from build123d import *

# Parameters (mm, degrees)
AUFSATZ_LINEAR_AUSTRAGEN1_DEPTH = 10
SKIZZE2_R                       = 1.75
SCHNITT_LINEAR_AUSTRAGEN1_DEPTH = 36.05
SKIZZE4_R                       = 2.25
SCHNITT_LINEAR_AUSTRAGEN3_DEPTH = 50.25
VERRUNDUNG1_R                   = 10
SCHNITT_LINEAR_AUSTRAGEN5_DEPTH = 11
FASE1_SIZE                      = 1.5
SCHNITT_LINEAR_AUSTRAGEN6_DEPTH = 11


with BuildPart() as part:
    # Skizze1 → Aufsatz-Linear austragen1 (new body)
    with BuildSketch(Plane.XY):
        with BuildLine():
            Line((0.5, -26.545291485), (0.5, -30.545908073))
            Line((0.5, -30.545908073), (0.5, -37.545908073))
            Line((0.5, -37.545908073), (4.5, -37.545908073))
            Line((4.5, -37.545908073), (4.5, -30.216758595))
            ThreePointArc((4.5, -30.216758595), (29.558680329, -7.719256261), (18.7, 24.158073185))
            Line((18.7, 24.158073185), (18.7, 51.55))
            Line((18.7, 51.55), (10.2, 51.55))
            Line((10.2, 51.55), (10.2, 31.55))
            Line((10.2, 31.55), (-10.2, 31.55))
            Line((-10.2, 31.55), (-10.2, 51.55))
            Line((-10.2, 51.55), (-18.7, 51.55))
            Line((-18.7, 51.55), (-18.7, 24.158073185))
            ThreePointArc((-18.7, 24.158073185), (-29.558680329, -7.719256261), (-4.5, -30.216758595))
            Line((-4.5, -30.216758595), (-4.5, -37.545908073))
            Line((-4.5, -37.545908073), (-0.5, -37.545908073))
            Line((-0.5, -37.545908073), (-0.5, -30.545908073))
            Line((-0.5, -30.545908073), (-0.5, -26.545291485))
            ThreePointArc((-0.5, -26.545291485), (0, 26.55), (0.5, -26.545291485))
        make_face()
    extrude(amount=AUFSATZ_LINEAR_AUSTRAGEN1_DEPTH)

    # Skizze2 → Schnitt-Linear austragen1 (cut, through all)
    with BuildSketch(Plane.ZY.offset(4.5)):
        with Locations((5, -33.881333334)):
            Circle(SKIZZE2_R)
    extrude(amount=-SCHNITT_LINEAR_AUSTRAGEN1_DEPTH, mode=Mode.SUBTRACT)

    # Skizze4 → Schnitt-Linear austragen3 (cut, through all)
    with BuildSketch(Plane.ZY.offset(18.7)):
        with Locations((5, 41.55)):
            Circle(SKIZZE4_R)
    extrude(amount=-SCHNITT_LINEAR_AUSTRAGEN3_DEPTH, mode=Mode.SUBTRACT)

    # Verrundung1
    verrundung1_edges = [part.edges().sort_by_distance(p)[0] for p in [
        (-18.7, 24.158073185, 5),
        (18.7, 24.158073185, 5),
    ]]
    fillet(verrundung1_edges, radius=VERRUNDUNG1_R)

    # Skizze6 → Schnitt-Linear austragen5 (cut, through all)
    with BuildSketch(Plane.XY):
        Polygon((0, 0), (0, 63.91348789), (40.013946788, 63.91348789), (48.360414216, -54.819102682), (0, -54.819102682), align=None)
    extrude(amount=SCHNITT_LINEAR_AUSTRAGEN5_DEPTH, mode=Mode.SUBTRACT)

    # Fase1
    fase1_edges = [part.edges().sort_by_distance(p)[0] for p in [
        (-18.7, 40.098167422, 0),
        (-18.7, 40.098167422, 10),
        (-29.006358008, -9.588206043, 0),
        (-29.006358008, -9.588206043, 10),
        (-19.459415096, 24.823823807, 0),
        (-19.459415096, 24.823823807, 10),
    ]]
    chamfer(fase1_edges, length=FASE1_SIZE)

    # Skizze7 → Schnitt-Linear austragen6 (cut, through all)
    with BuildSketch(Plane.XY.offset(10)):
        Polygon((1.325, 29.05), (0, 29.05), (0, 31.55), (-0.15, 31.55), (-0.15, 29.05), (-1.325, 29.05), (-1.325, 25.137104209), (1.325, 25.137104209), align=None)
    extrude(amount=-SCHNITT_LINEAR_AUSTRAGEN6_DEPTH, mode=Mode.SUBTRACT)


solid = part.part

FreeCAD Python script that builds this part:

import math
import FreeCAD as App
import Part
import Sketcher

V = App.Vector
Q = App.Units.Quantity


def edges_at(feature, points):
    """Names of the edges that pass closest to the given points."""
    edges = feature.Shape.Edges
    near = lambda p: min(range(len(edges)), key=lambda i: edges[i].distToShape(Part.Vertex(*p))[0])
    return sorted({f"Edge{near(p) + 1}" for p in points})


def add_polygon(sketch, points):
    """Adds a closed chain of lines whose ends are joined by coincident constraints."""
    first, n = sketch.GeometryCount, len(points)
    for a, b in zip(points, points[1:] + points[:1]):
        sketch.addGeometry(Part.LineSegment(App.Vector(*a, 0), App.Vector(*b, 0)), False)
    for i in range(n):
        sketch.addConstraint(Sketcher.Constraint("Coincident", first + i, 2, first + (i + 1) % n, 1))

doc = App.newDocument("Part")
params = doc.addObject("Spreadsheet::Sheet", "Params")
for row, (alias, value) in enumerate([
    ("sketch1_width", "4 mm"),
    ("sketch1_height", "20 mm"),
    ("sketch1_radius", "30.55 mm"),
    ("sketch1_radius2", "26.55 mm"),
    ("sketch1_width2", "8.5 mm"),
    ("pad1_length", "10 mm"),
    ("sketch2_diameter", "3.5 mm"),
    ("sketch3_diameter", "4.5 mm"),
    ("fillet_radius", "10 mm"),
    ("chamfer_size", "1.5 mm"),
    ("sketch5_height", "2.5 mm"),
    ("sketch5_width", "0.15 mm"),
    ("sketch5_width2", "2.65 mm"),
], start=1):
    params.set(f"A{row}", alias)
    params.set(f"B{row}", "=" + value)
    params.setAlias(f"B{row}", alias)

body = doc.addObject("PartDesign::Body", "Body")

# Sketch on XY plane
sketch1 = body.newObject("Sketcher::SketchObject", "Sketch")
sketch1.AttachmentSupport = (doc.getObject("XY_Plane"), [""])
sketch1.MapMode = "FlatFace"
sketch1.addGeometry(Part.LineSegment(V(0.5, -26.5, 0), V(0.5, -37.5, 0)), False)
sketch1.addGeometry(Part.LineSegment(V(0.5, -37.5, 0), V(4.5, -37.5, 0)), False)
sketch1.addGeometry(Part.LineSegment(V(4.5, -37.5, 0), V(4.5, -30.2, 0)), False)
sketch1.addGeometry(Part.ArcOfCircle(Part.Circle(V(0, 0, 0), V(0, 0, 1), 30.6), math.radians(-82), math.radians(52)), False)
sketch1.addGeometry(Part.LineSegment(V(18.7, 24.2, 0), V(18.7, 51.5, 0)), False)
sketch1.addGeometry(Part.LineSegment(V(18.7, 51.5, 0), V(10.2, 51.5, 0)), False)
sketch1.addGeometry(Part.LineSegment(V(10.2, 51.5, 0), V(10.2, 31.6, 0)), False)
sketch1.addGeometry(Part.LineSegment(V(10.2, 31.6, 0), V(-10.2, 31.6, 0)), False)
sketch1.addGeometry(Part.LineSegment(V(-10.2, 31.6, 0), V(-10.2, 51.5, 0)), False)
sketch1.addGeometry(Part.LineSegment(V(-10.2, 51.5, 0), V(-18.7, 51.5, 0)), False)
sketch1.addGeometry(Part.LineSegment(V(-18.7, 51.5, 0), V(-18.7, 24.2, 0)), False)
sketch1.addGeometry(Part.ArcOfCircle(Part.Circle(V(0, 0, 0), V(0, 0, 1), 30.6), math.radians(128), math.radians(262)), False)
sketch1.addGeometry(Part.LineSegment(V(-4.5, -30.2, 0), V(-4.5, -37.5, 0)), False)
sketch1.addGeometry(Part.LineSegment(V(-4.5, -37.5, 0), V(-0.5, -37.5, 0)), False)
sketch1.addGeometry(Part.LineSegment(V(-0.5, -37.5, 0), V(-0.5, -26.5, 0)), False)
sketch1.addGeometry(Part.ArcOfCircle(Part.Circle(V(0, 0, 0), V(0, 0, 1), 26.6), math.radians(-89), math.radians(269)), False)
sketch1.addConstraint(Sketcher.Constraint("Coincident", 0, 2, 1, 1))
sketch1.addConstraint(Sketcher.Constraint("Coincident", 1, 2, 2, 1))
sketch1.addConstraint(Sketcher.Constraint("Coincident", 2, 2, 3, 1))
sketch1.addConstraint(Sketcher.Constraint("Coincident", 3, 2, 4, 1))
sketch1.addConstraint(Sketcher.Constraint("Coincident", 4, 2, 5, 1))
sketch1.addConstraint(Sketcher.Constraint("Coincident", 5, 2, 6, 1))
sketch1.addConstraint(Sketcher.Constraint("Coincident", 6, 2, 7, 1))
sketch1.addConstraint(Sketcher.Constraint("Coincident", 7, 2, 8, 1))
sketch1.addConstraint(Sketcher.Constraint("Coincident", 8, 2, 9, 1))
sketch1.addConstraint(Sketcher.Constraint("Coincident", 9, 2, 10, 1))
sketch1.addConstraint(Sketcher.Constraint("Coincident", 10, 2, 11, 1))
sketch1.addConstraint(Sketcher.Constraint("Coincident", 11, 2, 12, 1))
sketch1.addConstraint(Sketcher.Constraint("Coincident", 12, 2, 13, 1))
sketch1.addConstraint(Sketcher.Constraint("Coincident", 13, 2, 14, 1))
sketch1.addConstraint(Sketcher.Constraint("Coincident", 14, 2, 15, 2))
sketch1.addConstraint(Sketcher.Constraint("Coincident", 15, 1, 0, 1))
sketch1.addConstraint(Sketcher.Constraint("Vertical", 0))
sketch1.addConstraint(Sketcher.Constraint("Horizontal", 1))
sketch1.addConstraint(Sketcher.Constraint("Vertical", 2))
sketch1.addConstraint(Sketcher.Constraint("Vertical", 4))
sketch1.addConstraint(Sketcher.Constraint("Horizontal", 5))
sketch1.addConstraint(Sketcher.Constraint("Vertical", 6))
sketch1.addConstraint(Sketcher.Constraint("Horizontal", 7))
sketch1.addConstraint(Sketcher.Constraint("Vertical", 8))
sketch1.addConstraint(Sketcher.Constraint("Horizontal", 9))
sketch1.addConstraint(Sketcher.Constraint("Vertical", 10))
sketch1.addConstraint(Sketcher.Constraint("Vertical", 12))
sketch1.addConstraint(Sketcher.Constraint("Horizontal", 13))
sketch1.addConstraint(Sketcher.Constraint("Vertical", 14))
sketch1.addConstraint(Sketcher.Constraint("Coincident", 3, 3, -1, 1))
sketch1.addConstraint(Sketcher.Constraint("Coincident", 11, 3, -1, 1))
sketch1.addConstraint(Sketcher.Constraint("Coincident", 15, 3, -1, 1))
sketch1.addConstraint(Sketcher.Constraint("Equal", 3, 11))
sketch1.addConstraint(Sketcher.Constraint("Symmetric", 5, 2, 8, 2, -2))
sketch1.addConstraint(Sketcher.Constraint("Symmetric", 1, 2, 12, 2, -2))
sketch1.addConstraint(Sketcher.Constraint("Horizontal", 3, 2, 10, 2))
sketch1.addConstraint(Sketcher.Constraint("Horizontal", 14, 2, 15, 1))
sketch1.addConstraint(Sketcher.Constraint("DistanceX", 1, 1, 1, 2, Q("4 mm")))
sketch1.addConstraint(Sketcher.Constraint("DistanceY", 6, 2, 6, 1, Q("20 mm")))
sketch1.addConstraint(Sketcher.Constraint("Radius", 3, Q("30.55 mm")))
sketch1.addConstraint(Sketcher.Constraint("Radius", 15, Q("26.55 mm")))
sketch1.addConstraint(Sketcher.Constraint("DistanceX", 5, 2, 5, 1, Q("8.5 mm")))
sketch1.addConstraint(Sketcher.Constraint("DistanceX", 7, 2, 7, 1, Q("20.4 mm")))
sketch1.addConstraint(Sketcher.Constraint("DistanceX", 11, 2, 0, 2, Q("5 mm")))
sketch1.addConstraint(Sketcher.Constraint("DistanceY", -1, 1, 4, 2, Q("51.55 mm")))
sketch1.addConstraint(Sketcher.Constraint("DistanceY", 2, 1, 2, 2, Q("7.329149 mm")))
sketch1.setExpression("Constraints[37]", "Params.sketch1_width")
sketch1.setExpression("Constraints[38]", "Params.sketch1_height")
sketch1.setExpression("Constraints[39]", "Params.sketch1_radius")
sketch1.setExpression("Constraints[40]", "Params.sketch1_radius2")
sketch1.setExpression("Constraints[41]", "Params.sketch1_width2")
pad1 = body.newObject("PartDesign::Pad", "Pad")
pad1.Profile = sketch1
pad1.setExpression("Length", "Params.pad1_length")

# Sketch on YZ plane
sketch2 = body.newObject("Sketcher::SketchObject", "Sketch001")
sketch2.AttachmentSupport = (doc.getObject("YZ_Plane"), [""])
sketch2.MapMode = "FlatFace"
sketch2.AttachmentOffset = App.Placement(V(0, 0, -4.5), App.Rotation())
sketch2.addGeometry(Part.Circle(V(-33.9, 5, 0), V(0, 0, 1), 1.8), False)
sketch2.addConstraint(Sketcher.Constraint("Diameter", 0, Q("3.5 mm")))
sketch2.addConstraint(Sketcher.Constraint("DistanceY", -1, 1, 0, 3, Q("5 mm")))
sketch2.addConstraint(Sketcher.Constraint("DistanceX", 0, 3, -1, 1, Q("33.881333 mm")))
sketch2.setExpression("Constraints[0]", "Params.sketch2_diameter")
pocket1 = body.newObject("PartDesign::Pocket", "Pocket")
pocket1.Profile = sketch2
pocket1.Type = "ThroughAll"
pocket1.Reversed = True

# Sketch on YZ plane
sketch3 = body.newObject("Sketcher::SketchObject", "Sketch002")
sketch3.AttachmentSupport = (doc.getObject("YZ_Plane"), [""])
sketch3.MapMode = "FlatFace"
sketch3.AttachmentOffset = App.Placement(V(0, 0, -18.7), App.Rotation())
sketch3.addGeometry(Part.Circle(V(41.5, 5, 0), V(0, 0, 1), 2.2), False)
sketch3.addConstraint(Sketcher.Constraint("Diameter", 0, Q("4.5 mm")))
sketch3.addConstraint(Sketcher.Constraint("DistanceY", -1, 1, 0, 3, Q("5 mm")))
sketch3.addConstraint(Sketcher.Constraint("DistanceX", -1, 1, 0, 3, Q("41.55 mm")))
sketch3.setExpression("Constraints[0]", "Params.sketch3_diameter")
pocket2 = body.newObject("PartDesign::Pocket", "Pocket001")
pocket2.Profile = sketch3
pocket2.Type = "ThroughAll"
pocket2.Reversed = True
doc.recompute()

fillet = body.newObject("PartDesign::Fillet", "Fillet")
fillet.Base = (pocket2, edges_at(pocket2, [(-18.7, 24.158, 5), (18.7, 24.158, 5)]))
fillet.setExpression("Radius", "Params.fillet_radius")

# Sketch on XY plane
sketch4 = body.newObject("Sketcher::SketchObject", "Sketch003")
sketch4.AttachmentSupport = (doc.getObject("XY_Plane"), [""])
sketch4.MapMode = "FlatFace"
add_polygon(sketch4, [(0, 64), (0, -55), (48, -55), (40, 64)])  # lines 0-3
sketch4.addConstraint(Sketcher.Constraint("Vertical", 0))
sketch4.addConstraint(Sketcher.Constraint("Horizontal", 1))
sketch4.addConstraint(Sketcher.Constraint("Horizontal", 3))
sketch4.addConstraint(Sketcher.Constraint("PointOnObject", 0, 2, -2))
sketch4.addConstraint(Sketcher.Constraint("DistanceY", 0, 2, 0, 1, Q("118.732591 mm")))
sketch4.addConstraint(Sketcher.Constraint("DistanceX", 1, 1, 1, 2, Q("48.360414 mm")))
sketch4.addConstraint(Sketcher.Constraint("DistanceX", 3, 2, 3, 1, Q("40.013947 mm")))
sketch4.addConstraint(Sketcher.Constraint("DistanceY", 0, 2, -1, 1, Q("54.819103 mm")))
pocket3 = body.newObject("PartDesign::Pocket", "Pocket002")
pocket3.Profile = sketch4
pocket3.Type = "ThroughAll"
pocket3.Reversed = True
doc.recompute()

chamfer = body.newObject("PartDesign::Chamfer", "Chamfer")
chamfer.Base = (pocket3, edges_at(pocket3, [
    (-18.7, 40.098, 0),
    (-18.7, 40.098, 10),
    (-29.006, -9.588, 0),
    (-29.006, -9.588, 10),
    (-19.459, 24.824, 0),
    (-19.459, 24.824, 10),
]))
chamfer.setExpression("Size", "Params.chamfer_size")

# Sketch on XY plane
sketch5 = body.newObject("Sketcher::SketchObject", "Sketch004")
sketch5.AttachmentSupport = (doc.getObject("XY_Plane"), [""])
sketch5.MapMode = "FlatFace"
sketch5.AttachmentOffset = App.Placement(V(0, 0, 10), App.Rotation())
add_polygon(sketch5, [(1.32, 29.05), (0, 29.05), (0, 31.55), (-0.15, 31.55), (-0.15, 29.05), (-1.32, 29.05), (-1.32, 25.14), (1.32, 25.14)])  # lines 0-7
sketch5.addConstraint(Sketcher.Constraint("Horizontal", 0))
sketch5.addConstraint(Sketcher.Constraint("Vertical", 1))
sketch5.addConstraint(Sketcher.Constraint("Horizontal", 2))
sketch5.addConstraint(Sketcher.Constraint("Vertical", 3))
sketch5.addConstraint(Sketcher.Constraint("Horizontal", 4))
sketch5.addConstraint(Sketcher.Constraint("Vertical", 5))
sketch5.addConstraint(Sketcher.Constraint("Horizontal", 6))
sketch5.addConstraint(Sketcher.Constraint("Vertical", 7))
sketch5.addConstraint(Sketcher.Constraint("Symmetric", 4, 2, 7, 2, -2))
sketch5.addConstraint(Sketcher.Constraint("PointOnObject", 0, 2, -2))
sketch5.addConstraint(Sketcher.Constraint("DistanceY", 1, 1, 1, 2, Q("2.5 mm")))
sketch5.addConstraint(Sketcher.Constraint("DistanceX", 2, 2, 2, 1, Q("0.15 mm")))
sketch5.addConstraint(Sketcher.Constraint("DistanceX", 6, 1, 6, 2, Q("2.65 mm")))
sketch5.addConstraint(Sketcher.Constraint("DistanceY", -1, 1, 0, 2, Q("29.05 mm")))
sketch5.addConstraint(Sketcher.Constraint("DistanceY", 5, 2, 5, 1, Q("3.912896 mm")))
sketch5.setExpression("Constraints[18]", "Params.sketch5_height")
sketch5.setExpression("Constraints[19]", "Params.sketch5_width")
sketch5.setExpression("Constraints[20]", "Params.sketch5_width2")
pocket4 = body.newObject("PartDesign::Pocket", "Pocket003")
pocket4.Profile = sketch5
pocket4.Type = "ThroughAll"

doc.recompute()
